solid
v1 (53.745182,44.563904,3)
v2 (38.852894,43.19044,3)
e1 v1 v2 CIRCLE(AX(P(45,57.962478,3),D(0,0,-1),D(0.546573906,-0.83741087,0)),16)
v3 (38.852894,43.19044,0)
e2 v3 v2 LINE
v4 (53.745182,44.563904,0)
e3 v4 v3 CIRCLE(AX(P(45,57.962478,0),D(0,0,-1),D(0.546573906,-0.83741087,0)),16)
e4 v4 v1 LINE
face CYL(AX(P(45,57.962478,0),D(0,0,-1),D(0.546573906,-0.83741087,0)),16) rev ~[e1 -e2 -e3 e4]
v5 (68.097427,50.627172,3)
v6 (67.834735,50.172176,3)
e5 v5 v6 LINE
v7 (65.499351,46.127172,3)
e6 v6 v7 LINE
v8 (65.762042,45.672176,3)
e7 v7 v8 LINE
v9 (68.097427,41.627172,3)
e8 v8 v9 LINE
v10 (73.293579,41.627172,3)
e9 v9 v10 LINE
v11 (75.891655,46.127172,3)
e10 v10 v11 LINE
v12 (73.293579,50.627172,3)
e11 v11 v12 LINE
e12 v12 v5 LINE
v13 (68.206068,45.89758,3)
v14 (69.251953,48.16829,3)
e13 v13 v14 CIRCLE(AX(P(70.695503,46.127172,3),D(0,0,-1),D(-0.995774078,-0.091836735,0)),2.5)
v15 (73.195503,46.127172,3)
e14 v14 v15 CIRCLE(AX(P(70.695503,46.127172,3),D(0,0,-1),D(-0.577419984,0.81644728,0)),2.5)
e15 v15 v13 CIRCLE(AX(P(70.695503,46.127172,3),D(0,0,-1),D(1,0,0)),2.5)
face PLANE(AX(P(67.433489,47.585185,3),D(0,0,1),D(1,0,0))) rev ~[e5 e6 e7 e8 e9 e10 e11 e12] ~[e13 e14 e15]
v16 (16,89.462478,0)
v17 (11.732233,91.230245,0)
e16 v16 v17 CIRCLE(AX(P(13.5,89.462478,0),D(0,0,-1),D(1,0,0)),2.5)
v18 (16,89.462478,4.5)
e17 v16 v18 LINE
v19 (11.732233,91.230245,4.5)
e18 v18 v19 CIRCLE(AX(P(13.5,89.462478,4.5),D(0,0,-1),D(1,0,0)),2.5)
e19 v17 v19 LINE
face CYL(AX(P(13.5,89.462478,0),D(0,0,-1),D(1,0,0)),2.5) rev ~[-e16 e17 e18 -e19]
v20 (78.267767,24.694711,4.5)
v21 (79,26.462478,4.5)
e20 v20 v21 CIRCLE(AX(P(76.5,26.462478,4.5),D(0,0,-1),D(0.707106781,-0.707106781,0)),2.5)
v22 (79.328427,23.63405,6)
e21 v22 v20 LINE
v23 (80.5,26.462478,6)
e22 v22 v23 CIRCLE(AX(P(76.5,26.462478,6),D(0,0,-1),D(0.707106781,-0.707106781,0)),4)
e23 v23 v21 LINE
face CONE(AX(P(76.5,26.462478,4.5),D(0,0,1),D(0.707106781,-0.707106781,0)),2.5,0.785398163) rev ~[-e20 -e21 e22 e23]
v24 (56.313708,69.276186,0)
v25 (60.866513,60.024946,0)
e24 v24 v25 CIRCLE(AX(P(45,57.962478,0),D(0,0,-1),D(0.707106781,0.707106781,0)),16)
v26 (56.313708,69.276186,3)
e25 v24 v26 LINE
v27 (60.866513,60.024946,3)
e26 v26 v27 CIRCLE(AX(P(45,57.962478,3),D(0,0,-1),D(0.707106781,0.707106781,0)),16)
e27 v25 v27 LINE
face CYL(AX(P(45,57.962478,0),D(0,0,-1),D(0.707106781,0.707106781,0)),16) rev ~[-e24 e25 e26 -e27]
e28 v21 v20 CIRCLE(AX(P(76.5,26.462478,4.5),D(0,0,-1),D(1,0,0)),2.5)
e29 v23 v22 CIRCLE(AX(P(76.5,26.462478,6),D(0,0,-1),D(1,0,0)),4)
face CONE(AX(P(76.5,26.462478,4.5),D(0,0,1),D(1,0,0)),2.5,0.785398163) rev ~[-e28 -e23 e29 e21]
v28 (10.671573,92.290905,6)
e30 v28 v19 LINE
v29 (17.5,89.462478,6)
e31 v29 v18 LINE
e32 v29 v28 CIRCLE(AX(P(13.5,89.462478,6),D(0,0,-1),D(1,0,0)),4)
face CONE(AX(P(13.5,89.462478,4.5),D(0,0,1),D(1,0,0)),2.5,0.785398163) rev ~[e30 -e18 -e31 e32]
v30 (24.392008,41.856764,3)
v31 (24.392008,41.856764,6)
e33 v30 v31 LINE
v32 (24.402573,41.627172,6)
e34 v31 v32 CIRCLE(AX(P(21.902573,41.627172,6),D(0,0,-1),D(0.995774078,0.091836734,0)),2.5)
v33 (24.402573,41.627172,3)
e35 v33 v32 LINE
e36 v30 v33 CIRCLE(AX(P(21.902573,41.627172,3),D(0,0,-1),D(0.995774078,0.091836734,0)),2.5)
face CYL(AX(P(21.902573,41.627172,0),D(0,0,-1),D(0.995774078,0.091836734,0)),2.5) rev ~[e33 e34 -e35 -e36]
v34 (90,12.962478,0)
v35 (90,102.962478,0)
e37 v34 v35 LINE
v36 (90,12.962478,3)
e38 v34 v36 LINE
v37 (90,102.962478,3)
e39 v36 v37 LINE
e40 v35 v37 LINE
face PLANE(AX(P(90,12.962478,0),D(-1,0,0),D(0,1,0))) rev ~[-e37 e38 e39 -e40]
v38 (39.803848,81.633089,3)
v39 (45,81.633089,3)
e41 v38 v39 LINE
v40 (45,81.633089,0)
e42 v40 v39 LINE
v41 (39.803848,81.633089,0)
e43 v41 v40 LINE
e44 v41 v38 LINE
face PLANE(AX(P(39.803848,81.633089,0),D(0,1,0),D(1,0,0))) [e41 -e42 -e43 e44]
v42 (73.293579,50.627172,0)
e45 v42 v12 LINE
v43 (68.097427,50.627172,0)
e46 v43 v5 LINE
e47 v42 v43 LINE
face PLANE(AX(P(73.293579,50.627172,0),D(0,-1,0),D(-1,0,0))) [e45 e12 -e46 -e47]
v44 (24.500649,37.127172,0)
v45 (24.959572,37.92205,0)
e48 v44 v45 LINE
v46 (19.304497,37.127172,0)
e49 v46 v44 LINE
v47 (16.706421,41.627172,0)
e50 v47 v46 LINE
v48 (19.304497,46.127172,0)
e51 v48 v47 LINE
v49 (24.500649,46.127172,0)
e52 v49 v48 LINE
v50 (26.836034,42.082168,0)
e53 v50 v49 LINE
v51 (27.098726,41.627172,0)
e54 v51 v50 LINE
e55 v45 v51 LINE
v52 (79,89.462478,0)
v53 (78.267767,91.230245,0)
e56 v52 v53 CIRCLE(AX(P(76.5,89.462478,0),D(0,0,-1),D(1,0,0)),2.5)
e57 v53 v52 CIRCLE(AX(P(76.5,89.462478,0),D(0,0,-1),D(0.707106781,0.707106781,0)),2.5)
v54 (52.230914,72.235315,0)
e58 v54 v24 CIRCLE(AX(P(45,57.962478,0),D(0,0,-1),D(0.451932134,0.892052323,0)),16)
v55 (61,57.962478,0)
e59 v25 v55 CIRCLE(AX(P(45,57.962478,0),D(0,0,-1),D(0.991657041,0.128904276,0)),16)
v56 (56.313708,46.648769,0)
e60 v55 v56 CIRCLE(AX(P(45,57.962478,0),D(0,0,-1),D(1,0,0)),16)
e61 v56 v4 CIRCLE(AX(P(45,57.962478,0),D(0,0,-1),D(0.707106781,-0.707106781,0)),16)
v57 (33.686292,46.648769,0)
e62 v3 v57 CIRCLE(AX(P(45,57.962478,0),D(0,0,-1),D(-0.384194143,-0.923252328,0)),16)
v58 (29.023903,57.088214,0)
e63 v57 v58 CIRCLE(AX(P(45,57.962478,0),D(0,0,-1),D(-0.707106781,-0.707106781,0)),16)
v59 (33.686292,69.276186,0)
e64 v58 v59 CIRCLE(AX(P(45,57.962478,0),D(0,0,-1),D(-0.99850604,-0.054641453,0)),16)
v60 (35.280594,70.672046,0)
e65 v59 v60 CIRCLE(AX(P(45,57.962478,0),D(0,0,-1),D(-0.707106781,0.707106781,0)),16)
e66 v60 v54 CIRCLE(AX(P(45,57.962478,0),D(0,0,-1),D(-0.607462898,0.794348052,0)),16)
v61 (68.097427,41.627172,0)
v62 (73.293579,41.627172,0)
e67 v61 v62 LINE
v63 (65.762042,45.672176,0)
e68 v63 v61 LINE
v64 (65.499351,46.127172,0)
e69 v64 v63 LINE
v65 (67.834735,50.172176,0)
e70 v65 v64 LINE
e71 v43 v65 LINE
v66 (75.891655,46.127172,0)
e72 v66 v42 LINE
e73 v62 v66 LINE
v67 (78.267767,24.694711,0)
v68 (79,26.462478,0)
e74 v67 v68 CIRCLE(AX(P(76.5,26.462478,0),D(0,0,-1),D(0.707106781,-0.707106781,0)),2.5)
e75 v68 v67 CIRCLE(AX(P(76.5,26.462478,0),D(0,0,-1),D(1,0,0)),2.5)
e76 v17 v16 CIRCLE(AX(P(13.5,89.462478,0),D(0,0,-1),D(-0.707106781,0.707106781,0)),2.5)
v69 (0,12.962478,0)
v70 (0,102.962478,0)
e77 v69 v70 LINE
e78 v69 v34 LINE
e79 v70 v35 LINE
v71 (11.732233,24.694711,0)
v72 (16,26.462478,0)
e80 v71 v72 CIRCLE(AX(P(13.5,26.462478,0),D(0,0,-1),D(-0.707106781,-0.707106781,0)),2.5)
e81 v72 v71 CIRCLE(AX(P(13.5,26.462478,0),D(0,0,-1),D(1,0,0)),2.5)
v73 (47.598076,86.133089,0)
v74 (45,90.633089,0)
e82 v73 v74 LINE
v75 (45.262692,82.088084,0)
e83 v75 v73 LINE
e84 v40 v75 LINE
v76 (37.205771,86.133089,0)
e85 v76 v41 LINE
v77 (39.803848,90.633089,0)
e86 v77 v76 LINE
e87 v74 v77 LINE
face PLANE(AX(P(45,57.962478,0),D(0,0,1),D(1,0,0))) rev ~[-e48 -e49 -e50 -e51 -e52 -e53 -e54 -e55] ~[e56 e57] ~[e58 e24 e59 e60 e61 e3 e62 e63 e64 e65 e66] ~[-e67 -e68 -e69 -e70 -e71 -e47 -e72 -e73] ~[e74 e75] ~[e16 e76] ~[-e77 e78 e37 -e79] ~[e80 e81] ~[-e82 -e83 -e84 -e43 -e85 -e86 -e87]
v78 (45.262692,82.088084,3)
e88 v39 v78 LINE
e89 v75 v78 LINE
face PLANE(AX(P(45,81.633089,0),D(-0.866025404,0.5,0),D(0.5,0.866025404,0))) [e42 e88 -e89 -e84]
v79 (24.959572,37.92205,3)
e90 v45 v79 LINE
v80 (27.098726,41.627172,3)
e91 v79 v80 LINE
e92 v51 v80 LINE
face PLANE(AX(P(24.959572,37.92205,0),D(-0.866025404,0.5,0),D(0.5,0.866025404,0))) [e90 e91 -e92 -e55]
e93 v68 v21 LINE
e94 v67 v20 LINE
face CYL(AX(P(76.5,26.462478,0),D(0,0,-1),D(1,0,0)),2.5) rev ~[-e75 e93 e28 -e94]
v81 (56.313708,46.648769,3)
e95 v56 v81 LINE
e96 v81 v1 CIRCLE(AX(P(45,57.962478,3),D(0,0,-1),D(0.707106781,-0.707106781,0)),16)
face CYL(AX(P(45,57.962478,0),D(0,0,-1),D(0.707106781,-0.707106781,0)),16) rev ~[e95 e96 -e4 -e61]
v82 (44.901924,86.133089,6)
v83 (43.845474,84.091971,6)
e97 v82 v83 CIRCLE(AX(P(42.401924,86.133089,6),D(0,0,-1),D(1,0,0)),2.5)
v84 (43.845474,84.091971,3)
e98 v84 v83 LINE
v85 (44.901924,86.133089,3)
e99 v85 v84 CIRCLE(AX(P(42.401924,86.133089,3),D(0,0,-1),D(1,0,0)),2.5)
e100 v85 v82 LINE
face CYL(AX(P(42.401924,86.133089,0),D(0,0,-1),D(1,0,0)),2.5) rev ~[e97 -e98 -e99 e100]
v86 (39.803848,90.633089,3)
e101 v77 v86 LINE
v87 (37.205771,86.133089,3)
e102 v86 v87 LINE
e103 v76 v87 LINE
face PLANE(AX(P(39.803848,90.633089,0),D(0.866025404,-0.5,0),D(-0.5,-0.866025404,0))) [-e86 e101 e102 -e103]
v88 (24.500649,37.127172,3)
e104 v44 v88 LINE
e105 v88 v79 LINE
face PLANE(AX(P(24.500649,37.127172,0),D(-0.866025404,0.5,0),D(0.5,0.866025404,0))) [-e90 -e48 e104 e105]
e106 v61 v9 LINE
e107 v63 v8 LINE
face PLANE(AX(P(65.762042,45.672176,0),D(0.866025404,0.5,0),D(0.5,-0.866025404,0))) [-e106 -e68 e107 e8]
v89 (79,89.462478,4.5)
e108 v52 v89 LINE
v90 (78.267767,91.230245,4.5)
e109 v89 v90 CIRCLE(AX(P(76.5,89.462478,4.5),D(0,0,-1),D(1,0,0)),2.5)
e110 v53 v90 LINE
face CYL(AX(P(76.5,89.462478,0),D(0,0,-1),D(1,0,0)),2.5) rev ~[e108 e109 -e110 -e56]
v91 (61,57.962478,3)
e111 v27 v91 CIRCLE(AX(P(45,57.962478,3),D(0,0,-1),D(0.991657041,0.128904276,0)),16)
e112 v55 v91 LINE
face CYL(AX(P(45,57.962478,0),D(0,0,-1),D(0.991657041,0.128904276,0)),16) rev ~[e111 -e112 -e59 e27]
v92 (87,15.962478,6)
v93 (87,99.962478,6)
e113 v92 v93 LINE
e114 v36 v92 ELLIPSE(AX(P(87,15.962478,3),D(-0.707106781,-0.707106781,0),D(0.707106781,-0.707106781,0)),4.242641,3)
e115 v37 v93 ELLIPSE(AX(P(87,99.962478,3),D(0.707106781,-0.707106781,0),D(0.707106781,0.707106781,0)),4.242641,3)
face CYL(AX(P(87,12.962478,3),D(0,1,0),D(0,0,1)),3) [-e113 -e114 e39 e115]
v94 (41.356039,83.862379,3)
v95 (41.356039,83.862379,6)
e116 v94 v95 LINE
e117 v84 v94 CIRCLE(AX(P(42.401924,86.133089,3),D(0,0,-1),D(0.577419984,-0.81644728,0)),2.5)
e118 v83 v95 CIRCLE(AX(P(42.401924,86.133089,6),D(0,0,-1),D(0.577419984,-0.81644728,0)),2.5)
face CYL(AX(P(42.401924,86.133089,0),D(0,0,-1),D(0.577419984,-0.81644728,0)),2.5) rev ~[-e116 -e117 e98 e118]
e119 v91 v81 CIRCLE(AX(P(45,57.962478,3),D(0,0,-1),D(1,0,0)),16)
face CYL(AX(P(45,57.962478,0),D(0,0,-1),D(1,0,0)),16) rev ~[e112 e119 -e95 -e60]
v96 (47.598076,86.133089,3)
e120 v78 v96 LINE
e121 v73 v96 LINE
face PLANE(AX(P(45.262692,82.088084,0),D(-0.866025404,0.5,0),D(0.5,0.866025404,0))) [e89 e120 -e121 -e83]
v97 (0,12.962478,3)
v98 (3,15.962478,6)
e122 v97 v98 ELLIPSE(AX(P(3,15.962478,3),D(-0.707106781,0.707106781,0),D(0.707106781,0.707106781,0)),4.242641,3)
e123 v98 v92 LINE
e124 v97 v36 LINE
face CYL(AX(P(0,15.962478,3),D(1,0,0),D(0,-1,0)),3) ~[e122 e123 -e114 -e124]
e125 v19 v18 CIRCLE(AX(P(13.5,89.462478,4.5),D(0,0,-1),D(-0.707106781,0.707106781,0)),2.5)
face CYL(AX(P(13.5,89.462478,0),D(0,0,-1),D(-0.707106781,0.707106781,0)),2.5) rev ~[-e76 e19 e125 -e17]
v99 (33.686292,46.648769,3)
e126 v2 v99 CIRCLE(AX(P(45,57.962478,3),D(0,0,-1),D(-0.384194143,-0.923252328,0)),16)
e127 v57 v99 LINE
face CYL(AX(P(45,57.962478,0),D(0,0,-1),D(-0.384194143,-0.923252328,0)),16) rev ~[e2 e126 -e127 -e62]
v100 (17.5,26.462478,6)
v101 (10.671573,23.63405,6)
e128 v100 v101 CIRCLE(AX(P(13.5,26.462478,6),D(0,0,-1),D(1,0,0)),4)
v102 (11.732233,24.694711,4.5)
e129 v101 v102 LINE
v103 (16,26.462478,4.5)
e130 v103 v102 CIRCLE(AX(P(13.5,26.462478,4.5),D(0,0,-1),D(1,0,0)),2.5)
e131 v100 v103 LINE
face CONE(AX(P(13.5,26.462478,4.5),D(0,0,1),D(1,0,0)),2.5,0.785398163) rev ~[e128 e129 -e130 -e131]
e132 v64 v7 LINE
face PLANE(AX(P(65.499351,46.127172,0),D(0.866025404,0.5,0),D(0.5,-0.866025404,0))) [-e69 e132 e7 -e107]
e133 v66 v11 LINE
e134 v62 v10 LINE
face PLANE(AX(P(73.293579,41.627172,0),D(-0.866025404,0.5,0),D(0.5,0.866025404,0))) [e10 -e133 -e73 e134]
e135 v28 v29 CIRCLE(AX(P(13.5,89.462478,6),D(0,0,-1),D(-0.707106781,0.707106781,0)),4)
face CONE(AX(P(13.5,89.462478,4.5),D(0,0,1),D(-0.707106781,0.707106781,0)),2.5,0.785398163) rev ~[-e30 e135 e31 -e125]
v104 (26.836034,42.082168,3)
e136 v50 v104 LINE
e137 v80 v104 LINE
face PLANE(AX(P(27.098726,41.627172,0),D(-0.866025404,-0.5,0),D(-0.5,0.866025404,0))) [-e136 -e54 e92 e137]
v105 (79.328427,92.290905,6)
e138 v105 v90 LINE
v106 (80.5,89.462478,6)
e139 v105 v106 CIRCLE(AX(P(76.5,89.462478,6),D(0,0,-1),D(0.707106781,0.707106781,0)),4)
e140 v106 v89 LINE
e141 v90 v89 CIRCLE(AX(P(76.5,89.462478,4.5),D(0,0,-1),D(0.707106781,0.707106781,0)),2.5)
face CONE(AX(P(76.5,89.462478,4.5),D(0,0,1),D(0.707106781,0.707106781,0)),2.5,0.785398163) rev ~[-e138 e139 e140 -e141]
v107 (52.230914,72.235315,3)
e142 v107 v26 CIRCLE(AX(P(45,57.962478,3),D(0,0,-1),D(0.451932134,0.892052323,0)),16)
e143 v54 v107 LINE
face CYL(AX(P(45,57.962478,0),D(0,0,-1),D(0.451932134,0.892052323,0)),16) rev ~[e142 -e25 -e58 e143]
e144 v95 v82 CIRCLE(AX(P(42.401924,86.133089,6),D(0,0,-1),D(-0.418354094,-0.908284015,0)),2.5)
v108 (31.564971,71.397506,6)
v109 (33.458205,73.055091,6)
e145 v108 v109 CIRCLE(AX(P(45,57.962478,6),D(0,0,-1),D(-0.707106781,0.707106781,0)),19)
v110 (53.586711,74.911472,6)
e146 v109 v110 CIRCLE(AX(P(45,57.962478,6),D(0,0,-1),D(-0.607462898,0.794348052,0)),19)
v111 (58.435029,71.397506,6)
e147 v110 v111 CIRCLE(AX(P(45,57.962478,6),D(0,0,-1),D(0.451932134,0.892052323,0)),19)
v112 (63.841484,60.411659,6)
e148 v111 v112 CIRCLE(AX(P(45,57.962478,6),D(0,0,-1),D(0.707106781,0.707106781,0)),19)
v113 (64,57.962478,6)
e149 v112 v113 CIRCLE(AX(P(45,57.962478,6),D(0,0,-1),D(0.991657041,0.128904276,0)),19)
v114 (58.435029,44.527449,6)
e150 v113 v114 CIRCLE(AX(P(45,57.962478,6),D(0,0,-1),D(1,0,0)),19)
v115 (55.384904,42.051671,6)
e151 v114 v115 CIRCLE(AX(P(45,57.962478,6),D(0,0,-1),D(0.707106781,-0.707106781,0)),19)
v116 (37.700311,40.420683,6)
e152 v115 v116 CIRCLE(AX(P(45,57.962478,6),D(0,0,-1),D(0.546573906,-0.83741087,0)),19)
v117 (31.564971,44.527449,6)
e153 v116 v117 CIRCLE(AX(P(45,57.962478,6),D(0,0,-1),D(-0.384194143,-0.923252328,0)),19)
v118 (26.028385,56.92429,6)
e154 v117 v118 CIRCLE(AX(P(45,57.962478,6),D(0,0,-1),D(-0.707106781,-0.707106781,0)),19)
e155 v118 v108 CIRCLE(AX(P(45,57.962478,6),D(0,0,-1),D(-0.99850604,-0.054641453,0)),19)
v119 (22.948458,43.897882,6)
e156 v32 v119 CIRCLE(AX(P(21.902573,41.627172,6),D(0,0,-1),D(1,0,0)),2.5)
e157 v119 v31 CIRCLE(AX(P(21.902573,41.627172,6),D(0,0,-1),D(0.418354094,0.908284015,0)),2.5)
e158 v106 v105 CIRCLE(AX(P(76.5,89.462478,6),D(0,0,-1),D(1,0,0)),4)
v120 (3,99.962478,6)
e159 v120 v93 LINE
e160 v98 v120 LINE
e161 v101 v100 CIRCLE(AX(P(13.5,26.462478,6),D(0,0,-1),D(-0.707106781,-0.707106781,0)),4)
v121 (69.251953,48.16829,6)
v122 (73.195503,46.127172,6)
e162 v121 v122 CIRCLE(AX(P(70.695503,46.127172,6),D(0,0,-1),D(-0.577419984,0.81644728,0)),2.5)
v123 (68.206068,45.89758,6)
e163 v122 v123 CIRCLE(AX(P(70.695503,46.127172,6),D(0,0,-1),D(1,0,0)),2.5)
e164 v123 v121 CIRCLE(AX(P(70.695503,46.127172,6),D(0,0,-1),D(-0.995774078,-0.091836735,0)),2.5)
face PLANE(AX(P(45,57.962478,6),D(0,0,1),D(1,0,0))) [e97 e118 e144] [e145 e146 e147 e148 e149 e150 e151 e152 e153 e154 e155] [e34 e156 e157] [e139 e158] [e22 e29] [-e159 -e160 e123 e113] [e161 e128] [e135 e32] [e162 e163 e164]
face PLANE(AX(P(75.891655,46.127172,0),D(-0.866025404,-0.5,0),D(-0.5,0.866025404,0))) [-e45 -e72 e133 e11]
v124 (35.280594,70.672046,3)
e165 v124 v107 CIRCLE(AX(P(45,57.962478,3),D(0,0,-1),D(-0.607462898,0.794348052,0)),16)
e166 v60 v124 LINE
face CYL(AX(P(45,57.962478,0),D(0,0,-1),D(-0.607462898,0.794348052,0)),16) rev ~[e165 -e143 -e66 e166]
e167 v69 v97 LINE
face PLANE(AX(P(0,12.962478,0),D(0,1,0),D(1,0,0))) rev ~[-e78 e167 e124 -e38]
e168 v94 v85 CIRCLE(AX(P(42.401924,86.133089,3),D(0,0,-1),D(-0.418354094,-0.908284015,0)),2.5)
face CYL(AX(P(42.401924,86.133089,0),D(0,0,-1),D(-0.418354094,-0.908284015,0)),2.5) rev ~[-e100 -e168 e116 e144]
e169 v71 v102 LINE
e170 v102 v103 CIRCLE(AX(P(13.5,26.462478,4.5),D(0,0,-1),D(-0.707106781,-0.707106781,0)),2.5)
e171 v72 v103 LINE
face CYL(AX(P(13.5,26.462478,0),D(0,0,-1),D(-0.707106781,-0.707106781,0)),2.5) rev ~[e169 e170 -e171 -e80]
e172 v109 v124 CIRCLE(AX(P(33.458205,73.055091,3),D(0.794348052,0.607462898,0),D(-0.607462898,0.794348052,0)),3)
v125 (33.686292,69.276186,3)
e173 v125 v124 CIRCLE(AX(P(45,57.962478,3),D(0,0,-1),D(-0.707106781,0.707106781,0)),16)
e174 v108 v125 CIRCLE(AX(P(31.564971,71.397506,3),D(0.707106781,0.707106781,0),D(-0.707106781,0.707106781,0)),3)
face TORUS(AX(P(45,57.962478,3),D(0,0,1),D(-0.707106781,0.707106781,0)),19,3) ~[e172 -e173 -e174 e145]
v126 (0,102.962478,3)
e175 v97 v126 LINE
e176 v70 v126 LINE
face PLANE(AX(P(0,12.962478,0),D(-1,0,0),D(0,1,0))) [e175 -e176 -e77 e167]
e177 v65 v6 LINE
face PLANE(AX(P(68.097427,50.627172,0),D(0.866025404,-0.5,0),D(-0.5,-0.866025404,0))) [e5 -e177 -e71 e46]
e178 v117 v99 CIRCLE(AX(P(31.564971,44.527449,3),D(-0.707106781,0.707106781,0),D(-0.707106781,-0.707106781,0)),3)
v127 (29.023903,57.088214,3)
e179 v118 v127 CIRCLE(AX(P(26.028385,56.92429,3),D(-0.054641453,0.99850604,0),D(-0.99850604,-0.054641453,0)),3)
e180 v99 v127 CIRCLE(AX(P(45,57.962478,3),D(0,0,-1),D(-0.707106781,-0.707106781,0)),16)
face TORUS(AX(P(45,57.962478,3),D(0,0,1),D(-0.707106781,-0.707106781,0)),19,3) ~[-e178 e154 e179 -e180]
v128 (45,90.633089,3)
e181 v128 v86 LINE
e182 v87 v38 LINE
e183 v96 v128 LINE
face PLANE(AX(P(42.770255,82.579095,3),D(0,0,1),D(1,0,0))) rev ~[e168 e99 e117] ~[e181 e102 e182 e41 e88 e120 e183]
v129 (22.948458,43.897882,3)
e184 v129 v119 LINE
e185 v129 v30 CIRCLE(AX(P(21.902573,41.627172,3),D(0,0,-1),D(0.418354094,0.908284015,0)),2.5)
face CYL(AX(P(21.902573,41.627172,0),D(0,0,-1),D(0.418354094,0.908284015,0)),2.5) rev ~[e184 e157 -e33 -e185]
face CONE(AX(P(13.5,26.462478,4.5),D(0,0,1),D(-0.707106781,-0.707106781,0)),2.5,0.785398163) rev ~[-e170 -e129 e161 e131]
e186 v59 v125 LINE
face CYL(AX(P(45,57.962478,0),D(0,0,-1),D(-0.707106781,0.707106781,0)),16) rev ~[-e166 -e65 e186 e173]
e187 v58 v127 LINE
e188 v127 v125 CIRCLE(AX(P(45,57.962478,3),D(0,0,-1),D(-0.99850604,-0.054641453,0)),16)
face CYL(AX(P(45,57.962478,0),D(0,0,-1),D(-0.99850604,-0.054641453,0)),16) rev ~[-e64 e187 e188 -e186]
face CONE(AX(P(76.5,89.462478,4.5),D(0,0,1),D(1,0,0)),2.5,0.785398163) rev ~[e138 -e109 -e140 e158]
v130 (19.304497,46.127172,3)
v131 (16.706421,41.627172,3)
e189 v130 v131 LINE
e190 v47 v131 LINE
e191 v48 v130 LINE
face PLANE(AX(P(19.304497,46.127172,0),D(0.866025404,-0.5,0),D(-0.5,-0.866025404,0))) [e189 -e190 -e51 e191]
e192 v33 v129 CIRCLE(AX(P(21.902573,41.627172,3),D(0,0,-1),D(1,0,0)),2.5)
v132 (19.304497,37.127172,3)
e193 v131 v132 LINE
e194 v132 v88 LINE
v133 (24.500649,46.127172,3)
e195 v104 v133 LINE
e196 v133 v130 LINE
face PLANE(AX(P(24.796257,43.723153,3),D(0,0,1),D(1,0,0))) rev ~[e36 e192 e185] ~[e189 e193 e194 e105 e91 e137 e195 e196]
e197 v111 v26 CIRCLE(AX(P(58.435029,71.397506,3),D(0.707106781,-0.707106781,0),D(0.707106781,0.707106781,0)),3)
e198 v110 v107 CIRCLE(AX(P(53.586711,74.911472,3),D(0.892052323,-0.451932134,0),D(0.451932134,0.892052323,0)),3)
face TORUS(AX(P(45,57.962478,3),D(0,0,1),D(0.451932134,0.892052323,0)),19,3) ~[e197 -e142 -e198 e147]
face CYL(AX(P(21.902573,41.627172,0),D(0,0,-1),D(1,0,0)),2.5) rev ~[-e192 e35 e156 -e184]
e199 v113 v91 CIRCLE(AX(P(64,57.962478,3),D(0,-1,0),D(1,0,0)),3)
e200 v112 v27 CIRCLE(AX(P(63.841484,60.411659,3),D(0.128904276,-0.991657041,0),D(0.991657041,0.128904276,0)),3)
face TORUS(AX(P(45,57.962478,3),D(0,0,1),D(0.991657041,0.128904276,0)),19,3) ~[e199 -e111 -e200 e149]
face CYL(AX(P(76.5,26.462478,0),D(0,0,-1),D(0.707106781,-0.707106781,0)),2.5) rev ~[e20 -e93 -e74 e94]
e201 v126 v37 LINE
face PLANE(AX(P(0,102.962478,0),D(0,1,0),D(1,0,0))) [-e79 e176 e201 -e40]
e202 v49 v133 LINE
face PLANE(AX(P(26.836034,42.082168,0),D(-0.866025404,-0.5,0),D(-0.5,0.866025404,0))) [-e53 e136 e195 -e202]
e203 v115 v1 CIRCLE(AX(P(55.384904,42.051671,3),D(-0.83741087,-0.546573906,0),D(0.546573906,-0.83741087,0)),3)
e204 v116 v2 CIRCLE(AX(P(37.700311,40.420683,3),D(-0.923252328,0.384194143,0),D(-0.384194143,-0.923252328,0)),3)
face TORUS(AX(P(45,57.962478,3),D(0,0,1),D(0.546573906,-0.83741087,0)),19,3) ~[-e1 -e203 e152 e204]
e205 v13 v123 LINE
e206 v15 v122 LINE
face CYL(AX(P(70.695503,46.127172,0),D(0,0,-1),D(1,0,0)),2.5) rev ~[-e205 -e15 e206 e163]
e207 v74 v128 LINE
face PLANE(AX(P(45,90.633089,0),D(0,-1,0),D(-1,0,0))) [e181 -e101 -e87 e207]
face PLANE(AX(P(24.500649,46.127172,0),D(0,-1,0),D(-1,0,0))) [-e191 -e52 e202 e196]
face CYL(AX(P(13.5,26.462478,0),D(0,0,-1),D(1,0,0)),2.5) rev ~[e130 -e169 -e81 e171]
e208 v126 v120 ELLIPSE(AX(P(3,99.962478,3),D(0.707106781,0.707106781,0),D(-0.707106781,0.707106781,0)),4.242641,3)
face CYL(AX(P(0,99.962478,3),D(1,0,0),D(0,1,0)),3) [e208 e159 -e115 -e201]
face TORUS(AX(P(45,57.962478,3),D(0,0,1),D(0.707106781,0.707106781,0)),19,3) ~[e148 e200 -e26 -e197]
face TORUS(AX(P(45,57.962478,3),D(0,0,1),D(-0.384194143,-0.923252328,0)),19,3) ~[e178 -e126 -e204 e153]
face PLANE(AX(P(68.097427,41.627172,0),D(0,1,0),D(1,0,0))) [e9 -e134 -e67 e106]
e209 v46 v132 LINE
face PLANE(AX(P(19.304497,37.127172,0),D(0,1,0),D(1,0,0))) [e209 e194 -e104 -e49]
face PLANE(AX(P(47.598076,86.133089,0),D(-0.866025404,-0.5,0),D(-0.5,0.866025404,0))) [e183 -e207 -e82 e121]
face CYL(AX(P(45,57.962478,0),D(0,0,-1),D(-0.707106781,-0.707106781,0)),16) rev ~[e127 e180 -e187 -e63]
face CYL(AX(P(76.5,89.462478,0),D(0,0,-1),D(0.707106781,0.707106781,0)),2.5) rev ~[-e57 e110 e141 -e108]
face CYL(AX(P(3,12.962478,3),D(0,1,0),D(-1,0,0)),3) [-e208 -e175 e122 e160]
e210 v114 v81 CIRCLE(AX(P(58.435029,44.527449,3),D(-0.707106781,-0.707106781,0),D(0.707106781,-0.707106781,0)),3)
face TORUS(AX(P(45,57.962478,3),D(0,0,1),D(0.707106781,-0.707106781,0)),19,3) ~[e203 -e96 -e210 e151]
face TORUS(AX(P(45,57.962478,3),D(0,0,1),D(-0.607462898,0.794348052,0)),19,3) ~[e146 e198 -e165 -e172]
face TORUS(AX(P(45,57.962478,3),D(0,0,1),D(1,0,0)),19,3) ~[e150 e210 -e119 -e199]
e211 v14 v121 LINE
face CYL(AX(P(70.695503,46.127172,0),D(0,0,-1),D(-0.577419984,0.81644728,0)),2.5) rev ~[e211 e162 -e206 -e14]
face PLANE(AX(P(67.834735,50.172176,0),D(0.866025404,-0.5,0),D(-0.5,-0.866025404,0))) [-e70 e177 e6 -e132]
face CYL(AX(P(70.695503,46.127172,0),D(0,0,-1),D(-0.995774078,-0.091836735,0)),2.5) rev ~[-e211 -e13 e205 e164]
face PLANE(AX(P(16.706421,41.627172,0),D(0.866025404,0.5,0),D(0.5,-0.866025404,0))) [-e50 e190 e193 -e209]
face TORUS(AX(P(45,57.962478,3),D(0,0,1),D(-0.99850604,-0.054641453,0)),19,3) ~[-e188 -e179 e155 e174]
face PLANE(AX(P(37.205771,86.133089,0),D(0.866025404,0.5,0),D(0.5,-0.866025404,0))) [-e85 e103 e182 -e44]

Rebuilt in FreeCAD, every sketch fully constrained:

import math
import FreeCAD as App
import Part
import Sketcher
from FreeCAD import Vector
Q = App.Units.Quantity


def edges_at(feature, points):
    """Names of the edges that pass closest to the given points."""
    edges = feature.Shape.Edges
    near = lambda p: min(range(len(edges)), key=lambda i: edges[i].distToShape(Part.Vertex(*p))[0])
    return sorted({f"Edge{near(p) + 1}" for p in points})

doc = App.newDocument("Part")
body = doc.addObject("PartDesign::Body", "Body")

sketch1 = body.newObject("Sketcher::SketchObject", "Sketch")
sketch1.AttachmentSupport = (doc.getObject("XY_Plane"), [""])
sketch1.MapMode = "FlatFace"
sketch1.addGeometry(Part.LineSegment(Vector(0, 102.962478, 0), Vector(0, 12.962478, 0)), False)
sketch1.addGeometry(Part.LineSegment(Vector(0, 12.962478, 0), Vector(90, 12.962478, 0)), False)
sketch1.addGeometry(Part.LineSegment(Vector(90, 12.962478, 0), Vector(90, 102.962478, 0)), False)
sketch1.addGeometry(Part.LineSegment(Vector(90, 102.962478, 0), Vector(0, 102.962478, 0)), False)
sketch1.addGeometry(Part.ArcOfCircle(Part.Circle(Vector(13.5, 26.462478, 0), Vector(0, 0, 1), 2.5), math.radians(0), math.radians(225)), False)
sketch1.addGeometry(Part.ArcOfCircle(Part.Circle(Vector(13.5, 26.462478, 0), Vector(0, 0, 1), 2.5), math.radians(-135), math.radians(0)), False)
sketch1.addGeometry(Part.ArcOfCircle(Part.Circle(Vector(76.5, 26.462478, 0), Vector(0, 0, 1), 2.5), math.radians(0), math.radians(315)), False)
sketch1.addGeometry(Part.ArcOfCircle(Part.Circle(Vector(76.5, 26.462478, 0), Vector(0, 0, 1), 2.5), math.radians(-45), math.radians(0)), False)
sketch1.addGeometry(Part.ArcOfCircle(Part.Circle(Vector(13.5, 89.462478, 0), Vector(0, 0, 1), 2.5), math.radians(0), math.radians(135)), False)
sketch1.addGeometry(Part.ArcOfCircle(Part.Circle(Vector(13.5, 89.462478, 0), Vector(0, 0, 1), 2.5), math.radians(135), math.radians(360)), False)
sketch1.addGeometry(Part.ArcOfCircle(Part.Circle(Vector(70.695503, 46.127172, 0), Vector(0, 0, 1), 2.5), math.radians(0), math.radians(125.269282)), False)
sketch1.addGeometry(Part.ArcOfCircle(Part.Circle(Vector(70.695503, 46.127172, 0), Vector(0, 0, 1), 2.5), math.radians(-174.730718), math.radians(0)), False)
sketch1.addGeometry(Part.ArcOfCircle(Part.Circle(Vector(70.695503, 46.127172, 0), Vector(0, 0, 1), 2.5), math.radians(125.269282), math.radians(185.269282)), False)
sketch1.addGeometry(Part.ArcOfCircle(Part.Circle(Vector(45, 57.962478, 0), Vector(0, 0, 1), 16), math.radians(-112.593721), math.radians(-56.867715)), False)
sketch1.addGeometry(Part.ArcOfCircle(Part.Circle(Vector(45, 57.962478, 0), Vector(0, 0, 1), 16), math.radians(-135), math.radians(-112.593721)), False)
sketch1.addGeometry(Part.ArcOfCircle(Part.Circle(Vector(45, 57.962478, 0), Vector(0, 0, 1), 16), math.radians(-176.867715), math.radians(-135)), False)
sketch1.addGeometry(Part.ArcOfCircle(Part.Circle(Vector(45, 57.962478, 0), Vector(0, 0, 1), 16), math.radians(135), math.radians(183.132285)), False)
sketch1.addGeometry(Part.ArcOfCircle(Part.Circle(Vector(45, 57.962478, 0), Vector(0, 0, 1), 16), math.radians(127.406279), math.radians(135)), False)
sketch1.addGeometry(Part.ArcOfCircle(Part.Circle(Vector(45, 57.962478, 0), Vector(0, 0, 1), 16), math.radians(63.132285), math.radians(127.406279)), False)
sketch1.addGeometry(Part.ArcOfCircle(Part.Circle(Vector(45, 57.962478, 0), Vector(0, 0, 1), 16), math.radians(45), math.radians(63.132285)), False)
sketch1.addGeometry(Part.ArcOfCircle(Part.Circle(Vector(45, 57.962478, 0), Vector(0, 0, 1), 16), math.radians(7.406279), math.radians(45)), False)
sketch1.addGeometry(Part.ArcOfCircle(Part.Circle(Vector(45, 57.962478, 0), Vector(0, 0, 1), 16), math.radians(0), math.radians(7.406279)), False)
sketch1.addGeometry(Part.ArcOfCircle(Part.Circle(Vector(45, 57.962478, 0), Vector(0, 0, 1), 16), math.radians(-45), math.radians(0)), False)
sketch1.addGeometry(Part.ArcOfCircle(Part.Circle(Vector(45, 57.962478, 0), Vector(0, 0, 1), 16), math.radians(-56.867715), math.radians(-45)), False)
sketch1.addGeometry(Part.ArcOfCircle(Part.Circle(Vector(42.401924, 86.133089, 0), Vector(0, 0, 1), 2.5), math.radians(0), math.radians(245.269282)), False)
sketch1.addGeometry(Part.ArcOfCircle(Part.Circle(Vector(42.401924, 86.133089, 0), Vector(0, 0, 1), 2.5), math.radians(-54.730718), math.radians(0)), False)
sketch1.addGeometry(Part.ArcOfCircle(Part.Circle(Vector(42.401924, 86.133089, 0), Vector(0, 0, 1), 2.5), math.radians(-114.730718), math.radians(-54.730718)), False)
sketch1.addGeometry(Part.ArcOfCircle(Part.Circle(Vector(21.902573, 41.627172, 0), Vector(0, 0, 1), 2.5), math.radians(0), math.radians(5.269282)), False)
sketch1.addGeometry(Part.ArcOfCircle(Part.Circle(Vector(21.902573, 41.627172, 0), Vector(0, 0, 1), 2.5), math.radians(65.269282), math.radians(360)), False)
sketch1.addGeometry(Part.ArcOfCircle(Part.Circle(Vector(21.902573, 41.627172, 0), Vector(0, 0, 1), 2.5), math.radians(5.269282), math.radians(65.269282)), False)
sketch1.addGeometry(Part.ArcOfCircle(Part.Circle(Vector(76.5, 89.462478, 0), Vector(0, 0, 1), 2.5), math.radians(0), math.radians(45)), False)
sketch1.addGeometry(Part.ArcOfCircle(Part.Circle(Vector(76.5, 89.462478, 0), Vector(0, 0, 1), 2.5), math.radians(45), math.radians(360)), False)
sketch1.addConstraint(Sketcher.Constraint("Coincident", 0, 2, 1, 1))
sketch1.addConstraint(Sketcher.Constraint("Coincident", 1, 2, 2, 1))
sketch1.addConstraint(Sketcher.Constraint("Coincident", 2, 2, 3, 1))
sketch1.addConstraint(Sketcher.Constraint("Coincident", 3, 2, 0, 1))
sketch1.addConstraint(Sketcher.Constraint("Tangent", 4, 1, 5, 2))
sketch1.addConstraint(Sketcher.Constraint("Coincident", 5, 1, 4, 2))
sketch1.addConstraint(Sketcher.Constraint("Tangent", 6, 1, 7, 2))
sketch1.addConstraint(Sketcher.Constraint("Coincident", 7, 1, 6, 2))
sketch1.addConstraint(Sketcher.Constraint("Tangent", 8, 1, 9, 2))
sketch1.addConstraint(Sketcher.Constraint("Coincident", 9, 1, 8, 2))
sketch1.addConstraint(Sketcher.Constraint("Tangent", 10, 1, 11, 2))
sketch1.addConstraint(Sketcher.Constraint("Tangent", 11, 1, 12, 2))
sketch1.addConstraint(Sketcher.Constraint("Tangent", 12, 1, 10, 2))
sketch1.addConstraint(Sketcher.Constraint("Tangent", 13, 1, 14, 2))
sketch1.addConstraint(Sketcher.Constraint("Tangent", 14, 1, 15, 2))
sketch1.addConstraint(Sketcher.Constraint("Tangent", 15, 1, 16, 2))
sketch1.addConstraint(Sketcher.Constraint("Tangent", 16, 1, 17, 2))
sketch1.addConstraint(Sketcher.Constraint("Tangent", 17, 1, 18, 2))
sketch1.addConstraint(Sketcher.Constraint("Tangent", 18, 1, 19, 2))
sketch1.addConstraint(Sketcher.Constraint("Tangent", 19, 1, 20, 2))
sketch1.addConstraint(Sketcher.Constraint("Tangent", 20, 1, 21, 2))
sketch1.addConstraint(Sketcher.Constraint("Tangent", 21, 1, 22, 2))
sketch1.addConstraint(Sketcher.Constraint("Tangent", 22, 1, 23, 2))
sketch1.addConstraint(Sketcher.Constraint("Tangent", 23, 1, 13, 2))
sketch1.addConstraint(Sketcher.Constraint("Tangent", 24, 1, 25, 2))
sketch1.addConstraint(Sketcher.Constraint("Tangent", 25, 1, 26, 2))
sketch1.addConstraint(Sketcher.Constraint("Tangent", 26, 1, 24, 2))
sketch1.addConstraint(Sketcher.Constraint("Tangent", 27, 1, 28, 2))
sketch1.addConstraint(Sketcher.Constraint("Tangent", 28, 1, 29, 2))
sketch1.addConstraint(Sketcher.Constraint("Tangent", 29, 1, 27, 2))
sketch1.addConstraint(Sketcher.Constraint("Tangent", 30, 1, 31, 2))
sketch1.addConstraint(Sketcher.Constraint("Coincident", 31, 1, 30, 2))
sketch1.addConstraint(Sketcher.Constraint("Vertical", 0))
sketch1.addConstraint(Sketcher.Constraint("Horizontal", 1))
sketch1.addConstraint(Sketcher.Constraint("Vertical", 2))
sketch1.addConstraint(Sketcher.Constraint("Horizontal", 3))
sketch1.addConstraint(Sketcher.Constraint("Coincident", 15, 3, 13, 3))
sketch1.addConstraint(Sketcher.Constraint("Coincident", 17, 3, 13, 3))
sketch1.addConstraint(Sketcher.Constraint("Coincident", 19, 3, 13, 3))
sketch1.addConstraint(Sketcher.Constraint("Coincident", 21, 3, 13, 3))
sketch1.addConstraint(Sketcher.Constraint("Equal", 5, 6))
sketch1.addConstraint(Sketcher.Constraint("Equal", 7, 8))
sketch1.addConstraint(Sketcher.Constraint("Equal", 9, 10))
sketch1.addConstraint(Sketcher.Constraint("Equal", 12, 24))
sketch1.addConstraint(Sketcher.Constraint("Equal", 26, 27))
sketch1.addConstraint(Sketcher.Constraint("Equal", 29, 30))
sketch1.addConstraint(Sketcher.Constraint("PointOnObject", 0, 2, -2))
sketch1.addConstraint(Sketcher.Constraint("Horizontal", 5, 3, 6, 3))
sketch1.addConstraint(Sketcher.Constraint("Horizontal", 9, 3, 30, 3))
sketch1.addConstraint(Sketcher.Constraint("Horizontal", 7, 3, 4, 1))
sketch1.addConstraint(Sketcher.Constraint("Horizontal", 4, 1, 6, 1))
sketch1.addConstraint(Sketcher.Constraint("Horizontal", 5, 1, 7, 1))
sketch1.addConstraint(Sketcher.Constraint("Horizontal", 31, 3, 8, 1))
sketch1.addConstraint(Sketcher.Constraint("Horizontal", 12, 3, 10, 1))
sketch1.addConstraint(Sketcher.Constraint("Horizontal", 16, 1, 19, 1))
sketch1.addConstraint(Sketcher.Constraint("Horizontal", 23, 3, 21, 1))
sketch1.addConstraint(Sketcher.Constraint("Horizontal", 14, 1, 22, 1))
sketch1.addConstraint(Sketcher.Constraint("Horizontal", 26, 3, 24, 1))
sketch1.addConstraint(Sketcher.Constraint("Horizontal", 29, 3, 27, 1))
sketch1.addConstraint(Sketcher.Constraint("Horizontal", 8, 1, 30, 1))
sketch1.addConstraint(Sketcher.Constraint("Horizontal", 9, 1, 31, 1))
sketch1.addConstraint(Sketcher.Constraint("Vertical", 5, 3, 8, 3))
sketch1.addConstraint(Sketcher.Constraint("Vertical", 7, 3, 30, 3))
sketch1.addConstraint(Sketcher.Constraint("Vertical", 5, 1, 9, 1))
sketch1.addConstraint(Sketcher.Constraint("Vertical", 14, 1, 16, 1))
sketch1.addConstraint(Sketcher.Constraint("Equal", 3, 0))
sketch1.addConstraint(Sketcher.Constraint("Radius", 13, Q("16 mm")))
sketch1.addConstraint(Sketcher.Constraint("Radius", 4, Q("2.5 mm")))
sketch1.addConstraint(Sketcher.Constraint("DistanceX", 1, 1, 1, 2, Q("90 mm")))
sketch1.addConstraint(Sketcher.Constraint("DistanceX", -1, 1, 13, 3, Q("45 mm")))
sketch1.addConstraint(Sketcher.Constraint("DistanceX", -1, 1, 4, 1, Q("16 mm")))
sketch1.addConstraint(Sketcher.Constraint("DistanceX", -1, 1, 6, 1, Q("79 mm")))
sketch1.addConstraint(Sketcher.Constraint("DistanceY", 4, 3, 8, 3, Q("63 mm")))
sketch1.addConstraint(Sketcher.Constraint("DistanceY", 13, 3, 8, 3, Q("31.5 mm")))
sketch1.addConstraint(Sketcher.Constraint("DistanceY", 0, 2, 4, 3, Q("13.5 mm")))
sketch1.addConstraint(Sketcher.Constraint("DistanceX", 18, 1, 20, 1, Q("8.635599 mm")))
sketch1.addConstraint(Sketcher.Constraint("DistanceY", -1, 1, 24, 3, Q("86.133089 mm")))
sketch1.addConstraint(Sketcher.Constraint("DistanceY", -1, 1, 5, 1, Q("24.694711 mm")))
sketch1.addConstraint(Sketcher.Constraint("DistanceY", -1, 1, 11, 1, Q("45.89758 mm")))
sketch1.addConstraint(Sketcher.Constraint("DistanceY", -1, 1, 12, 1, Q("48.16829 mm")))
sketch1.addConstraint(Sketcher.Constraint("DistanceY", -1, 1, 13, 1, Q("43.19044 mm")))
sketch1.addConstraint(Sketcher.Constraint("DistanceX", -1, 1, 14, 1, Q("33.686292 mm")))
sketch1.addConstraint(Sketcher.Constraint("DistanceY", -1, 1, 14, 1, Q("46.648769 mm")))
sketch1.addConstraint(Sketcher.Constraint("DistanceY", -1, 1, 25, 1, Q("84.091971 mm")))
sketch1.addConstraint(Sketcher.Constraint("DistanceX", -1, 1, 26, 1, Q("41.356039 mm")))
sketch1.addConstraint(Sketcher.Constraint("DistanceY", -1, 1, 26, 1, Q("83.862379 mm")))
sketch1.addConstraint(Sketcher.Constraint("DistanceX", -1, 1, 28, 1, Q("22.948458 mm")))
sketch1.addConstraint(Sketcher.Constraint("DistanceX", -1, 1, 29, 1, Q("24.392008 mm")))
sketch1.addConstraint(Sketcher.Constraint("DistanceX", 5, 1, 27, 3, Q("10.17034 mm")))
sketch1.addConstraint(Sketcher.Constraint("DistanceY", 5, 1, 27, 3, Q("16.932461 mm")))
sketch1.addConstraint(Sketcher.Constraint("DistanceY", 7, 1, 11, 3, Q("21.432461 mm")))
sketch1.addConstraint(Sketcher.Constraint("DistanceX", 15, 1, 14, 1, Q("4.662388 mm")))
sketch1.addConstraint(Sketcher.Constraint("DistanceY", 16, 1, 17, 1, Q("1.39586 mm")))
sketch1.addConstraint(Sketcher.Constraint("DistanceY", 19, 1, 18, 1, Q("2.959129 mm")))
sketch1.addConstraint(Sketcher.Constraint("DistanceX", 20, 1, 12, 1, Q("8.38544 mm")))
sketch1.addConstraint(Sketcher.Constraint("DistanceX", 13, 1, 23, 1, Q("14.892289 mm")))
pad1 = body.newObject("PartDesign::Pad", "Pad")
pad1.Profile = sketch1
pad1.Length = 6

sketch2 = body.newObject("Sketcher::SketchObject", "Sketch001")
sketch2.AttachmentSupport = (doc.getObject("XY_Plane"), [""])
sketch2.MapMode = "FlatFace"
sketch2.addGeometry(Part.LineSegment(Vector(45, 81.633089, 0), Vector(45.262692, 82.088084, 0)), False)
sketch2.addGeometry(Part.LineSegment(Vector(45.262692, 82.088084, 0), Vector(47.598076, 86.133089, 0)), False)
sketch2.addGeometry(Part.LineSegment(Vector(47.598076, 86.133089, 0), Vector(45, 90.633089, 0)), False)
sketch2.addGeometry(Part.LineSegment(Vector(45, 90.633089, 0), Vector(39.803848, 90.633089, 0)), False)
sketch2.addGeometry(Part.LineSegment(Vector(39.803848, 90.633089, 0), Vector(37.205771, 86.133089, 0)), False)
sketch2.addGeometry(Part.LineSegment(Vector(37.205771, 86.133089, 0), Vector(39.803848, 81.633089, 0)), False)
sketch2.addGeometry(Part.LineSegment(Vector(39.803848, 81.633089, 0), Vector(45, 81.633089, 0)), False)
sketch2.addGeometry(Part.ArcOfCircle(Part.Circle(Vector(42.401924, 86.133089, 0), Vector(0, 0, 1), 2.5), math.radians(-114.730718), math.radians(-54.730718)), False)
sketch2.addGeometry(Part.ArcOfCircle(Part.Circle(Vector(42.401924, 86.133089, 0), Vector(0, 0, 1), 2.5), math.radians(0), math.radians(245.269282)), False)
sketch2.addGeometry(Part.ArcOfCircle(Part.Circle(Vector(42.401924, 86.133089, 0), Vector(0, 0, 1), 2.5), math.radians(-54.730718), math.radians(0)), False)
sketch2.addGeometry(Part.LineSegment(Vector(24.500649, 46.127172, 0), Vector(19.304497, 46.127172, 0)), False)
sketch2.addGeometry(Part.LineSegment(Vector(19.304497, 46.127172, 0), Vector(16.706421, 41.627172, 0)), False)
sketch2.addGeometry(Part.LineSegment(Vector(16.706421, 41.627172, 0), Vector(19.304497, 37.127172, 0)), False)
sketch2.addGeometry(Part.LineSegment(Vector(19.304497, 37.127172, 0), Vector(24.500649, 37.127172, 0)), False)
sketch2.addGeometry(Part.LineSegment(Vector(24.500649, 37.127172, 0), Vector(24.959572, 37.92205, 0)), False)
sketch2.addGeometry(Part.LineSegment(Vector(24.959572, 37.92205, 0), Vector(27.098726, 41.627172, 0)), False)
sketch2.addGeometry(Part.LineSegment(Vector(27.098726, 41.627172, 0), Vector(26.836034, 42.082168, 0)), False)
sketch2.addGeometry(Part.LineSegment(Vector(26.836034, 42.082168, 0), Vector(24.500649, 46.127172, 0)), False)
sketch2.addGeometry(Part.ArcOfCircle(Part.Circle(Vector(21.902573, 41.627172, 0), Vector(0, 0, 1), 2.5), math.radians(5.269282), math.radians(65.269282)), False)
sketch2.addGeometry(Part.ArcOfCircle(Part.Circle(Vector(21.902573, 41.627172, 0), Vector(0, 0, 1), 2.5), math.radians(0), math.radians(5.269282)), False)
sketch2.addGeometry(Part.ArcOfCircle(Part.Circle(Vector(21.902573, 41.627172, 0), Vector(0, 0, 1), 2.5), math.radians(65.269282), math.radians(360)), False)
sketch2.addGeometry(Part.LineSegment(Vector(67.834735, 50.172176, 0), Vector(65.499351, 46.127172, 0)), False)
sketch2.addGeometry(Part.LineSegment(Vector(65.499351, 46.127172, 0), Vector(65.762042, 45.672176, 0)), False)
sketch2.addGeometry(Part.LineSegment(Vector(65.762042, 45.672176, 0), Vector(68.097427, 41.627172, 0)), False)
sketch2.addGeometry(Part.LineSegment(Vector(68.097427, 41.627172, 0), Vector(73.293579, 41.627172, 0)), False)
sketch2.addGeometry(Part.LineSegment(Vector(73.293579, 41.627172, 0), Vector(75.891655, 46.127172, 0)), False)
sketch2.addGeometry(Part.LineSegment(Vector(75.891655, 46.127172, 0), Vector(73.293579, 50.627172, 0)), False)
sketch2.addGeometry(Part.LineSegment(Vector(73.293579, 50.627172, 0), Vector(68.097427, 50.627172, 0)), False)
sketch2.addGeometry(Part.LineSegment(Vector(68.097427, 50.627172, 0), Vector(67.834735, 50.172176, 0)), False)
sketch2.addGeometry(Part.ArcOfCircle(Part.Circle(Vector(70.695503, 46.127172, 0), Vector(0, 0, 1), 2.5), math.radians(125.269282), math.radians(185.269282)), False)
sketch2.addGeometry(Part.ArcOfCircle(Part.Circle(Vector(70.695503, 46.127172, 0), Vector(0, 0, 1), 2.5), math.radians(0), math.radians(125.269282)), False)
sketch2.addGeometry(Part.ArcOfCircle(Part.Circle(Vector(70.695503, 46.127172, 0), Vector(0, 0, 1), 2.5), math.radians(-174.730718), math.radians(0)), False)
sketch2.addConstraint(Sketcher.Constraint("Coincident", 0, 2, 1, 1))
sketch2.addConstraint(Sketcher.Constraint("Coincident", 1, 2, 2, 1))
sketch2.addConstraint(Sketcher.Constraint("Coincident", 2, 2, 3, 1))
sketch2.addConstraint(Sketcher.Constraint("Coincident", 3, 2, 4, 1))
sketch2.addConstraint(Sketcher.Constraint("Coincident", 4, 2, 5, 1))
sketch2.addConstraint(Sketcher.Constraint("Coincident", 5, 2, 6, 1))
sketch2.addConstraint(Sketcher.Constraint("Coincident", 6, 2, 0, 1))
sketch2.addConstraint(Sketcher.Constraint("Tangent", 7, 1, 8, 2))
sketch2.addConstraint(Sketcher.Constraint("Tangent", 8, 1, 9, 2))
sketch2.addConstraint(Sketcher.Constraint("Tangent", 9, 1, 7, 2))
sketch2.addConstraint(Sketcher.Constraint("Coincident", 10, 2, 11, 1))
sketch2.addConstraint(Sketcher.Constraint("Coincident", 11, 2, 12, 1))
sketch2.addConstraint(Sketcher.Constraint("Coincident", 12, 2, 13, 1))
sketch2.addConstraint(Sketcher.Constraint("Coincident", 13, 2, 14, 1))
sketch2.addConstraint(Sketcher.Constraint("Coincident", 14, 2, 15, 1))
sketch2.addConstraint(Sketcher.Constraint("Coincident", 15, 2, 16, 1))
sketch2.addConstraint(Sketcher.Constraint("Coincident", 16, 2, 17, 1))
sketch2.addConstraint(Sketcher.Constraint("Coincident", 17, 2, 10, 1))
sketch2.addConstraint(Sketcher.Constraint("Tangent", 18, 1, 19, 2))
sketch2.addConstraint(Sketcher.Constraint("Tangent", 19, 1, 20, 2))
sketch2.addConstraint(Sketcher.Constraint("Tangent", 20, 1, 18, 2))
sketch2.addConstraint(Sketcher.Constraint("Coincident", 21, 2, 22, 1))
sketch2.addConstraint(Sketcher.Constraint("Coincident", 22, 2, 23, 1))
sketch2.addConstraint(Sketcher.Constraint("Coincident", 23, 2, 24, 1))
sketch2.addConstraint(Sketcher.Constraint("Coincident", 24, 2, 25, 1))
sketch2.addConstraint(Sketcher.Constraint("Coincident", 25, 2, 26, 1))
sketch2.addConstraint(Sketcher.Constraint("Coincident", 26, 2, 27, 1))
sketch2.addConstraint(Sketcher.Constraint("Coincident", 27, 2, 28, 1))
sketch2.addConstraint(Sketcher.Constraint("Coincident", 28, 2, 21, 1))
sketch2.addConstraint(Sketcher.Constraint("Tangent", 29, 1, 30, 2))
sketch2.addConstraint(Sketcher.Constraint("Tangent", 30, 1, 31, 2))
sketch2.addConstraint(Sketcher.Constraint("Tangent", 31, 1, 29, 2))
sketch2.addConstraint(Sketcher.Constraint("Horizontal", 3))
sketch2.addConstraint(Sketcher.Constraint("Horizontal", 6))
sketch2.addConstraint(Sketcher.Constraint("Horizontal", 10))
sketch2.addConstraint(Sketcher.Constraint("Horizontal", 13))
sketch2.addConstraint(Sketcher.Constraint("Horizontal", 24))
sketch2.addConstraint(Sketcher.Constraint("Horizontal", 27))
sketch2.addConstraint(Sketcher.Constraint("Equal", 9, 18))
sketch2.addConstraint(Sketcher.Constraint("Equal", 20, 29))
sketch2.addConstraint(Sketcher.Constraint("Parallel", 0, 1))
sketch2.addConstraint(Sketcher.Constraint("Parallel", 1, 4))
sketch2.addConstraint(Sketcher.Constraint("Parallel", 2, 5))
sketch2.addConstraint(Sketcher.Constraint("Parallel", 4, 11))
sketch2.addConstraint(Sketcher.Constraint("Parallel", 5, 12))
sketch2.addConstraint(Sketcher.Constraint("Parallel", 11, 14))
sketch2.addConstraint(Sketcher.Constraint("Parallel", 14, 15))
sketch2.addConstraint(Sketcher.Constraint("Parallel", 12, 16))
sketch2.addConstraint(Sketcher.Constraint("Parallel", 16, 17))
sketch2.addConstraint(Sketcher.Constraint("Parallel", 15, 21))
sketch2.addConstraint(Sketcher.Constraint("Parallel", 17, 22))
sketch2.addConstraint(Sketcher.Constraint("Parallel", 22, 23))
sketch2.addConstraint(Sketcher.Constraint("Parallel", 21, 25))
sketch2.addConstraint(Sketcher.Constraint("Parallel", 23, 26))
sketch2.addConstraint(Sketcher.Constraint("Parallel", 25, 28))
sketch2.addConstraint(Sketcher.Constraint("Horizontal", 9, 3, 1, 2))
sketch2.addConstraint(Sketcher.Constraint("Horizontal", 1, 2, 4, 2))
sketch2.addConstraint(Sketcher.Constraint("Horizontal", 4, 2, 8, 1))
sketch2.addConstraint(Sketcher.Constraint("Horizontal", 31, 3, 10, 2))
sketch2.addConstraint(Sketcher.Constraint("Horizontal", 20, 3, 11, 2))
sketch2.addConstraint(Sketcher.Constraint("Horizontal", 11, 2, 15, 2))
sketch2.addConstraint(Sketcher.Constraint("Horizontal", 15, 2, 19, 1))
sketch2.addConstraint(Sketcher.Constraint("Horizontal", 17, 2, 21, 2))
sketch2.addConstraint(Sketcher.Constraint("Horizontal", 19, 1, 23, 2))
sketch2.addConstraint(Sketcher.Constraint("Horizontal", 21, 2, 25, 2))
sketch2.addConstraint(Sketcher.Constraint("Horizontal", 25, 2, 30, 1))
sketch2.addConstraint(Sketcher.Constraint("Vertical", 3, 2, 5, 2))
sketch2.addConstraint(Sketcher.Constraint("Vertical", 2, 2, 6, 2))
sketch2.addConstraint(Sketcher.Constraint("Vertical", 10, 2, 12, 2))
sketch2.addConstraint(Sketcher.Constraint("Vertical", 24, 2, 26, 2))
sketch2.addConstraint(Sketcher.Constraint("Equal", 6, 10))
sketch2.addConstraint(Sketcher.Constraint("Equal", 13, 24))
sketch2.addConstraint(Sketcher.Constraint("Equal", 5, 11))
sketch2.addConstraint(Sketcher.Constraint("Equal", 0, 16))
sketch2.addConstraint(Sketcher.Constraint("Equal", 17, 21))
sketch2.addConstraint(Sketcher.Constraint("Equal", 16, 22))
sketch2.addConstraint(Sketcher.Constraint("Radius", 7, Q("2.5 mm")))
sketch2.addConstraint(Sketcher.Constraint("Angle", 0, Q("60 deg")))
sketch2.addConstraint(Sketcher.Constraint("DistanceX", -1, 1, 2, 2, Q("45 mm")))
sketch2.addConstraint(Sketcher.Constraint("DistanceY", 12, 2, 10, 2, Q("9 mm")))
sketch2.addConstraint(Sketcher.Constraint("DistanceX", 18, 3, 14, 2, Q("3.056999 mm")))
sketch2.addConstraint(Sketcher.Constraint("Distance", 1, Q("4.670769 mm")))
sketch2.addConstraint(Sketcher.Constraint("DistanceX", 3, 2, 3, 1, Q("5.196152 mm")))
sketch2.addConstraint(Sketcher.Constraint("DistanceY", -1, 1, 7, 3, Q("86.133089 mm")))
sketch2.addConstraint(Sketcher.Constraint("DistanceX", -1, 1, 7, 1, Q("41.356039 mm")))
sketch2.addConstraint(Sketcher.Constraint("DistanceY", -1, 1, 7, 1, Q("83.862379 mm")))
sketch2.addConstraint(Sketcher.Constraint("DistanceY", -1, 1, 9, 1, Q("84.091971 mm")))
sketch2.addConstraint(Sketcher.Constraint("DistanceX", -1, 1, 11, 2, Q("16.706421 mm")))
sketch2.addConstraint(Sketcher.Constraint("DistanceY", -1, 1, 14, 2, Q("37.92205 mm")))
sketch2.addConstraint(Sketcher.Constraint("DistanceX", -1, 1, 18, 1, Q("24.392008 mm")))
sketch2.addConstraint(Sketcher.Constraint("DistanceX", -1, 1, 20, 1, Q("22.948458 mm")))
sketch2.addConstraint(Sketcher.Constraint("DistanceX", -1, 1, 21, 2, Q("65.499351 mm")))
sketch2.addConstraint(Sketcher.Constraint("DistanceY", -1, 1, 29, 1, Q("48.16829 mm")))
sketch2.addConstraint(Sketcher.Constraint("DistanceY", -1, 1, 31, 1, Q("45.89758 mm")))
sketch2.addConstraint(Sketcher.Constraint("DistanceX", 18, 3, 7, 3, Q("20.499351 mm")))
sketch2.addConstraint(Sketcher.Constraint("DistanceX", 18, 3, 29, 3, Q("48.79293 mm")))
pocket1 = body.newObject("PartDesign::Pocket", "Pocket")
pocket1.Profile = sketch2
pocket1.Length = 3
pocket1.Reversed = True
doc.recompute()

fillet = body.newObject("PartDesign::Fillet", "Fillet")
fillet.Base = (pocket1, edges_at(pocket1, [
    (0, 57.962, 6),
    (45, 12.962, 6),
    (45, 102.962, 6),
    (90, 57.962, 6),
    (30.391, 51.438, 6),
]))
fillet.Radius = 3
doc.recompute()

chamfer = body.newObject("PartDesign::Chamfer", "Chamfer")
chamfer.Base = (fillet, edges_at(fillet, [
    (12.543, 87.153, 6),
    (74.19, 88.506, 6),
    (74.19, 27.419, 6),
    (12.543, 28.772, 6),
]))
chamfer.Size = 1.5

doc.recompute()
